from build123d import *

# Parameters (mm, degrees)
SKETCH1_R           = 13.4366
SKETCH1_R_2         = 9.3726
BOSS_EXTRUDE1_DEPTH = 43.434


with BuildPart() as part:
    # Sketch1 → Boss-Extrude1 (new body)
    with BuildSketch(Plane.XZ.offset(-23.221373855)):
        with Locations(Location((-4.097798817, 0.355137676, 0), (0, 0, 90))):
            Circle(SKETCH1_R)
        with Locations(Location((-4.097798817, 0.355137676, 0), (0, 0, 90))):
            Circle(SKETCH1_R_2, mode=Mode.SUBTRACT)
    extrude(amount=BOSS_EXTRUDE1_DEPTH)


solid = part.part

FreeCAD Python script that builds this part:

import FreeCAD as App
import Part
import Sketcher
Q = App.Units.Quantity

doc = App.newDocument("Part")
body = doc.addObject("PartDesign::Body", "Body")

# Sketch on XZ plane
sketch1 = body.newObject("Sketcher::SketchObject", "Sketch")
sketch1.AttachmentSupport = (doc.getObject("XZ_Plane"), [""])
sketch1.MapMode = "FlatFace"
sketch1.AttachmentOffset = App.Placement(App.Vector(0, 0, -23.221374), App.Rotation())
sketch1.addGeometry([
    Part.Circle(App.Vector(-4, 0, 0), App.Vector(0, 0, 1), 13),
    Part.Circle(App.Vector(-4, 0, 0), App.Vector(0, 0, 1), 9),
], False)
sketch1.addConstraint([
    Sketcher.Constraint("Coincident", 1, 3, 0, 3),
    Sketcher.Constraint("Diameter", 0, Q("1.058 in")),
    Sketcher.Constraint("Diameter", 1, Q("0.738 in")),
    Sketcher.Constraint("DistanceX", 0, 3, -1, 1, Q("4.097799 mm")),
    Sketcher.Constraint("DistanceY", -1, 1, 0, 3, Q("0.355138 mm")),
])
pad1 = body.newObject("PartDesign::Pad", "Pad")
pad1.Profile = sketch1
pad1.Length = Q("1.71 in")

doc.recompute()
